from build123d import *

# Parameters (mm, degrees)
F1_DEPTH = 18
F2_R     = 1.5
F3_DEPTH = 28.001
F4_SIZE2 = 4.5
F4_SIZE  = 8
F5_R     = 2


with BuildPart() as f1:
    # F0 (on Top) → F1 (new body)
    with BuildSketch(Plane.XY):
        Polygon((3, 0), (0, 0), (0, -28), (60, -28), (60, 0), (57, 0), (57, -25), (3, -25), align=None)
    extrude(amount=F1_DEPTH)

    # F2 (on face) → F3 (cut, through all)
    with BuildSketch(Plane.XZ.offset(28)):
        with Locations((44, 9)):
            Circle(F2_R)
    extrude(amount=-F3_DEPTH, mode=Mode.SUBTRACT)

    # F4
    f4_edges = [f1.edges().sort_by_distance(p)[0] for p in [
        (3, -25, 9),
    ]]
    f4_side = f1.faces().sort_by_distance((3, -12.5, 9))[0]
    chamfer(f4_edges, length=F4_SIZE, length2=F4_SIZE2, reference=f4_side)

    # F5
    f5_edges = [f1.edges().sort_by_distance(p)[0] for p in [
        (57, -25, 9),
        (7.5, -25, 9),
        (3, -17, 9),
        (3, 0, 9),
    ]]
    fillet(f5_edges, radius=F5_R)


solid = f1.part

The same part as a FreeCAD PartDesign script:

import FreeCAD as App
import Part
import Sketcher

V = App.Vector
Q = App.Units.Quantity


def edges_at(feature, points):
    """Names of the edges that pass closest to the given points."""
    edges = feature.Shape.Edges
    near = lambda p: min(range(len(edges)), key=lambda i: edges[i].distToShape(Part.Vertex(*p))[0])
    return sorted({f"Edge{near(p) + 1}" for p in points})


def add_polygon(sketch, points):
    """Adds a closed chain of lines whose ends are joined by coincident constraints."""
    first, n = sketch.GeometryCount, len(points)
    for a, b in zip(points, points[1:] + points[:1]):
        sketch.addGeometry(Part.LineSegment(App.Vector(*a, 0), App.Vector(*b, 0)), False)
    for i in range(n):
        sketch.addConstraint(Sketcher.Constraint("Coincident", first + i, 2, first + (i + 1) % n, 1))

doc = App.newDocument("Part")
body = doc.addObject("PartDesign::Body", "Body")

# Sketch on XY plane
sketch1 = body.newObject("Sketcher::SketchObject", "Sketch")
sketch1.AttachmentSupport = (doc.getObject("XY_Plane"), [""])
sketch1.MapMode = "FlatFace"
add_polygon(sketch1, [(3, 0), (0, 0), (0, -28), (60, -28), (60, 0), (57, 0), (57, -25), (3, -25)])  # lines 0-7
sketch1.addConstraint(Sketcher.Constraint("Horizontal", 0))
sketch1.addConstraint(Sketcher.Constraint("Vertical", 1))
sketch1.addConstraint(Sketcher.Constraint("Horizontal", 2))
sketch1.addConstraint(Sketcher.Constraint("Vertical", 3))
sketch1.addConstraint(Sketcher.Constraint("Horizontal", 4))
sketch1.addConstraint(Sketcher.Constraint("Vertical", 5))
sketch1.addConstraint(Sketcher.Constraint("Horizontal", 6))
sketch1.addConstraint(Sketcher.Constraint("Vertical", 7))
sketch1.addConstraint(Sketcher.Constraint("Coincident", 0, 2, -1, 1))
sketch1.addConstraint(Sketcher.Constraint("PointOnObject", 3, 2, -1))
sketch1.addConstraint(Sketcher.Constraint("Equal", 0, 4))
sketch1.addConstraint(Sketcher.Constraint("DistanceX", 0, 2, 0, 1, Q("3 mm")))
sketch1.addConstraint(Sketcher.Constraint("DistanceX", 2, 1, 2, 2, Q("60 mm")))
sketch1.addConstraint(Sketcher.Constraint("DistanceY", 1, 2, 1, 1, Q("28 mm")))
sketch1.addConstraint(Sketcher.Constraint("DistanceY", 5, 2, 5, 1, Q("25 mm")))
pad1 = body.newObject("PartDesign::Pad", "Pad")
pad1.Profile = sketch1
pad1.Length = 18

# Sketch on XZ plane
sketch2 = body.newObject("Sketcher::SketchObject", "Sketch001")
sketch2.AttachmentSupport = (doc.getObject("XZ_Plane"), [""])
sketch2.MapMode = "FlatFace"
sketch2.AttachmentOffset = App.Placement(V(0, 0, 28), App.Rotation())
sketch2.addGeometry(Part.Circle(V(44, 9, 0), V(0, 0, 1), 1.5), False)
sketch2.addConstraint(Sketcher.Constraint("Diameter", 0, Q("3 mm")))
sketch2.addConstraint(Sketcher.Constraint("DistanceX", -1, 1, 0, 3, Q("44 mm")))
sketch2.addConstraint(Sketcher.Constraint("DistanceY", -1, 1, 0, 3, Q("9 mm")))
pocket1 = body.newObject("PartDesign::Pocket", "Pocket")
pocket1.Profile = sketch2
pocket1.Type = "ThroughAll"
doc.recompute()

chamfer = body.newObject("PartDesign::Chamfer", "Chamfer")
chamfer.Base = (pocket1, edges_at(pocket1, [(3, -25, 9)]))
chamfer.ChamferType = "Two distances"
chamfer.Size = 8
chamfer.Size2 = 4.5
doc.recompute()

fillet = body.newObject("PartDesign::Fillet", "Fillet")
fillet.Base = (chamfer, edges_at(chamfer, [
    (57, -25, 9),
    (7.5, -25, 9),
    (3, -17, 9),
    (3, 0, 9),
]))
fillet.Radius = 2

doc.recompute()
